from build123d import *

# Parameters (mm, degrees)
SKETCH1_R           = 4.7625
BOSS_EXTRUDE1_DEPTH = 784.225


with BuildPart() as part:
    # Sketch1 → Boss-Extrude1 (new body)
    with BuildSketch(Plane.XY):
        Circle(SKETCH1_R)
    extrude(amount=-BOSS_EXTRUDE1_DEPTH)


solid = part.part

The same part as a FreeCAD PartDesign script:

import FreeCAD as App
import Part
import Sketcher
Q = App.Units.Quantity

doc = App.newDocument("Part")
body = doc.addObject("PartDesign::Body", "Body")

# Sketch on XY plane
sketch1 = body.newObject("Sketcher::SketchObject", "Sketch")
sketch1.AttachmentSupport = (doc.getObject("XY_Plane"), [""])
sketch1.MapMode = "FlatFace"
sketch1.addGeometry(Part.Circle(App.Vector(0, 0, 0), App.Vector(0, 0, 1), 4.8), False)
sketch1.addConstraint(Sketcher.Constraint("Coincident", 0, 3, -1, 1))
sketch1.addConstraint(Sketcher.Constraint("Diameter", 0, Q("0.375 in")))
pad1 = body.newObject("PartDesign::Pad", "Pad")
pad1.Profile = sketch1
pad1.Length = Q("30.875 in")
pad1.Reversed = True

doc.recompute()
